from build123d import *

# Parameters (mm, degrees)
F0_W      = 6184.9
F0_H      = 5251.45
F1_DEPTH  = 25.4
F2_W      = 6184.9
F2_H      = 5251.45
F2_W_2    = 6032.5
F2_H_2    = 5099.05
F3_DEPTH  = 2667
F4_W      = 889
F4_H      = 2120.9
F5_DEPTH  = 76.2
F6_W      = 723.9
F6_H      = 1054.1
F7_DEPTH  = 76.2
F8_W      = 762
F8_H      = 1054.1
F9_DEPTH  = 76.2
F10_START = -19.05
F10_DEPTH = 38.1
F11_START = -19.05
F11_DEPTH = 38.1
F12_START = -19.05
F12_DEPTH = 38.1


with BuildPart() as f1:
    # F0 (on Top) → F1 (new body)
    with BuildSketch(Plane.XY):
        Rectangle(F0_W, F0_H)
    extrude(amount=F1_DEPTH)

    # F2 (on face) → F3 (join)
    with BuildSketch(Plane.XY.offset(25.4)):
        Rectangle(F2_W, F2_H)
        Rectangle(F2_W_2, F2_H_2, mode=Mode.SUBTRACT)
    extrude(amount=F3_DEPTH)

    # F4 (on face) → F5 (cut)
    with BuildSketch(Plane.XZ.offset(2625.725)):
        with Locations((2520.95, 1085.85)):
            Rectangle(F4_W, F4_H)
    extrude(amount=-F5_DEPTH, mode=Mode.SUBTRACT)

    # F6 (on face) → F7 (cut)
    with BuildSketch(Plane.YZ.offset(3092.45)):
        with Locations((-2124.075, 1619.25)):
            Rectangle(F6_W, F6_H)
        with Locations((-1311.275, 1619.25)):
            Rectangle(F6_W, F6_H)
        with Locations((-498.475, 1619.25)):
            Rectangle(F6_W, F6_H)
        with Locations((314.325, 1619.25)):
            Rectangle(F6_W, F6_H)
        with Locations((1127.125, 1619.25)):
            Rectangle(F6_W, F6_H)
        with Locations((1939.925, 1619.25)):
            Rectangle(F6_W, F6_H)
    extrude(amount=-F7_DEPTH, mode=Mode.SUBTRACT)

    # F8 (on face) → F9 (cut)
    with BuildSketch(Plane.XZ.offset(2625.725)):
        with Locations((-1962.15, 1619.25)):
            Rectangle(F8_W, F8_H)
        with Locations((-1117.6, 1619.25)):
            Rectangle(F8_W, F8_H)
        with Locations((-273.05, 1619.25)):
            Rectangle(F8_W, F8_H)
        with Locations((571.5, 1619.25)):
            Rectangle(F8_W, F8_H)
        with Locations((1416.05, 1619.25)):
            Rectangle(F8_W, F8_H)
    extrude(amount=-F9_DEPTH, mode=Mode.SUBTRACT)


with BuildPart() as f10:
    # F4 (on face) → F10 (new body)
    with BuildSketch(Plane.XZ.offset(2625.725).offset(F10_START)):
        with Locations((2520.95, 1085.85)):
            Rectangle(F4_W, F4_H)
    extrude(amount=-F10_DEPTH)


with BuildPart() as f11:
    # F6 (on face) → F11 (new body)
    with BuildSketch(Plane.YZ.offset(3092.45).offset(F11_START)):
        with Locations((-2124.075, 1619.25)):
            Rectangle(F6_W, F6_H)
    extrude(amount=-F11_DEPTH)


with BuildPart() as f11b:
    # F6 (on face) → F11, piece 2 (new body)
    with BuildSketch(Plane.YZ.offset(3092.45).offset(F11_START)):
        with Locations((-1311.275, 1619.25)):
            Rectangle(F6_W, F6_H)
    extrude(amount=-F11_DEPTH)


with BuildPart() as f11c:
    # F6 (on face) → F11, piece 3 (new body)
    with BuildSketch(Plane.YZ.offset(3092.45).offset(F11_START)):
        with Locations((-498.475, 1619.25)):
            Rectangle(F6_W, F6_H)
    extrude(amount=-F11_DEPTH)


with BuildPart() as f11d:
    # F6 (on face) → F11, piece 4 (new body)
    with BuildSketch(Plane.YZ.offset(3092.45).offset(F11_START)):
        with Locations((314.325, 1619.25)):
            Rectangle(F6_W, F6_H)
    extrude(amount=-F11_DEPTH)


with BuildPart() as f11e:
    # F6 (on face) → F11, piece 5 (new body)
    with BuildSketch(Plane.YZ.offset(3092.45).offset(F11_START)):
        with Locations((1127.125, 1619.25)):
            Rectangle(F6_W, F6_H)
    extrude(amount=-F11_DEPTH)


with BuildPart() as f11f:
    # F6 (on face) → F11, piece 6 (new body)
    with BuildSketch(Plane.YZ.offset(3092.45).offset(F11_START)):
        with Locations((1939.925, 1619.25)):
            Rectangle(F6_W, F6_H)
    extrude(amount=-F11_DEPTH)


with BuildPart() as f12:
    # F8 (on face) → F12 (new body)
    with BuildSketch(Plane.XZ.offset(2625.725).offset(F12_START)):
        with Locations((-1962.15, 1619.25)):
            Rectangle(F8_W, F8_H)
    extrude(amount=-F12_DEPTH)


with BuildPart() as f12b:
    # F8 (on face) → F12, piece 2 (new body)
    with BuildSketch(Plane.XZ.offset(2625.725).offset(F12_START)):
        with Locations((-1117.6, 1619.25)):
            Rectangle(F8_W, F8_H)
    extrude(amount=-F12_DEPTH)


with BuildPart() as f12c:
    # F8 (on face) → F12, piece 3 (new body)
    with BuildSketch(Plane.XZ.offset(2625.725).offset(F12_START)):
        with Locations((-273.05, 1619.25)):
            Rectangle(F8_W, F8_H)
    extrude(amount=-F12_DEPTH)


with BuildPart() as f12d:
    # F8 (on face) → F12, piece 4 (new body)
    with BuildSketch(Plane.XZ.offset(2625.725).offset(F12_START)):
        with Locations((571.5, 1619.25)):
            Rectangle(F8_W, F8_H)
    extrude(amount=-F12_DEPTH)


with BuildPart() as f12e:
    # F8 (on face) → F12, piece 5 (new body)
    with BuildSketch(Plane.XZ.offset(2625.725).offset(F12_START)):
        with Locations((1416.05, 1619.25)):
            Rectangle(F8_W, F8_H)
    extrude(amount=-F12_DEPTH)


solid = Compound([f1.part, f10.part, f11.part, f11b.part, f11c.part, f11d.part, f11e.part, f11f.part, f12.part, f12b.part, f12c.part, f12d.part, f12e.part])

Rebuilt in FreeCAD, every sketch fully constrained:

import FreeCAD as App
import Part
import Sketcher
from FreeCAD import Vector
Q = App.Units.Quantity


def add_polygon(sketch, points):
    """Adds a closed chain of lines whose ends are joined by coincident constraints."""
    first, n = sketch.GeometryCount, len(points)
    for a, b in zip(points, points[1:] + points[:1]):
        sketch.addGeometry(Part.LineSegment(App.Vector(*a, 0), App.Vector(*b, 0)), False)
    for i in range(n):
        sketch.addConstraint(Sketcher.Constraint("Coincident", first + i, 2, first + (i + 1) % n, 1))

doc = App.newDocument("Part")
body = doc.addObject("PartDesign::Body", "Body")

# Sketch on XY plane
sketch1 = body.newObject("Sketcher::SketchObject", "Sketch")
sketch1.AttachmentSupport = (doc.getObject("XY_Plane"), [""])
sketch1.MapMode = "FlatFace"
add_polygon(sketch1, [(-3092, 2626), (-3092, -2626), (3092, -2626), (3092, 2626)])  # lines 0-3
sketch1.addConstraint([
    Sketcher.Constraint("Vertical", 0),
    Sketcher.Constraint("Horizontal", 1),
    Sketcher.Constraint("Vertical", 2),
    Sketcher.Constraint("Horizontal", 3),
    Sketcher.Constraint("Symmetric", 0, 2, 2, 2, -1, 1),
    Sketcher.Constraint("DistanceX", 1, 1, 1, 2, Q("243.5 in")),
    Sketcher.Constraint("DistanceY", 0, 2, 0, 1, Q("206.75 in")),
])
pad1 = body.newObject("PartDesign::Pad", "Pad")
pad1.Profile = sketch1
pad1.Length = Q("1 in")

# Sketch on XY plane
sketch2 = body.newObject("Sketcher::SketchObject", "Sketch001")
sketch2.AttachmentSupport = (doc.getObject("XY_Plane"), [""])
sketch2.MapMode = "FlatFace"
sketch2.AttachmentOffset = App.Placement(Vector(0, 0, 1 * 25.4), App.Rotation())
add_polygon(sketch2, [(-3092, 2626), (-3092, -2626), (3092, -2626), (3092, 2626)])  # lines 0-3
add_polygon(sketch2, [(3016, -2550), (-3016, -2550), (-3016, 2550), (3016, 2550)])  # lines 4-7
sketch2.addConstraint([
    Sketcher.Constraint("Vertical", 0),
    Sketcher.Constraint("Horizontal", 1),
    Sketcher.Constraint("Vertical", 2),
    Sketcher.Constraint("Horizontal", 3),
    Sketcher.Constraint("Horizontal", 4),
    Sketcher.Constraint("Vertical", 5),
    Sketcher.Constraint("Horizontal", 6),
    Sketcher.Constraint("Vertical", 7),
    Sketcher.Constraint("Symmetric", 0, 2, 2, 2, -1, 1),
    Sketcher.Constraint("Symmetric", 4, 2, 6, 2, -1, 1),
    Sketcher.Constraint("DistanceX", 1, 1, 1, 2, Q("243.5 in")),
    Sketcher.Constraint("DistanceX", 4, 2, 4, 1, Q("237.5 in")),
    Sketcher.Constraint("DistanceY", 0, 2, 4, 2, Q("3 in")),
    Sketcher.Constraint("DistanceY", 0, 2, 0, 1, Q("206.75 in")),
])
pad2 = body.newObject("PartDesign::Pad", "Pad001")
pad2.Profile = sketch2
pad2.Length = Q("105 in")

# Sketch on XZ plane
sketch3 = body.newObject("Sketcher::SketchObject", "Sketch002")
sketch3.AttachmentSupport = (doc.getObject("XZ_Plane"), [""])
sketch3.MapMode = "FlatFace"
sketch3.AttachmentOffset = App.Placement(Vector(0, 0, 103.375 * 25.4), App.Rotation())
add_polygon(sketch3, [(2076, 2146), (2076, 25), (2965, 25), (2965, 2146)])  # lines 0-3
sketch3.addConstraint([
    Sketcher.Constraint("Vertical", 0),
    Sketcher.Constraint("Horizontal", 1),
    Sketcher.Constraint("Vertical", 2),
    Sketcher.Constraint("Horizontal", 3),
    Sketcher.Constraint("DistanceX", 1, 1, 1, 2, Q("35 in")),
    Sketcher.Constraint("DistanceY", 0, 2, 0, 1, Q("83.5 in")),
    Sketcher.Constraint("DistanceY", -1, 1, 0, 2, Q("1 in")),
    Sketcher.Constraint("DistanceX", -1, 1, 0, 2, Q("81.75 in")),
])
pocket1 = body.newObject("PartDesign::Pocket", "Pocket")
pocket1.Profile = sketch3
pocket1.Length = Q("3 in")

# Sketch on YZ plane
sketch4 = body.newObject("Sketcher::SketchObject", "Sketch003")
sketch4.AttachmentSupport = (doc.getObject("YZ_Plane"), [""])
sketch4.MapMode = "FlatFace"
sketch4.AttachmentOffset = App.Placement(Vector(0, 0, 121.75 * 25.4), App.Rotation())
add_polygon(sketch4, [(-2486, 2146), (-2486, 1092), (-1762, 1092), (-1762, 2146)])  # lines 0-3
add_polygon(sketch4, [(-1673, 2146), (-1673, 1092), (-949, 1092), (-949, 2146)])  # lines 4-7
add_polygon(sketch4, [(-860, 2146), (-860, 1092), (-137, 1092), (-137, 2146)])  # lines 8-11
add_polygon(sketch4, [(-48, 2146), (-48, 1092), (676, 1092), (676, 2146)])  # lines 12-15
add_polygon(sketch4, [(765, 2146), (765, 1092), (1489, 1092), (1489, 2146)])  # lines 16-19
add_polygon(sketch4, [(1578, 2146), (1578, 1092), (2302, 1092), (2302, 2146)])  # lines 20-23
sketch4.addConstraint([
    Sketcher.Constraint("Vertical", 0),
    Sketcher.Constraint("Horizontal", 1),
    Sketcher.Constraint("Vertical", 2),
    Sketcher.Constraint("Horizontal", 3),
    Sketcher.Constraint("Vertical", 4),
    Sketcher.Constraint("Horizontal", 5),
    Sketcher.Constraint("Vertical", 6),
    Sketcher.Constraint("Horizontal", 7),
    Sketcher.Constraint("Vertical", 8),
    Sketcher.Constraint("Horizontal", 9),
    Sketcher.Constraint("Vertical", 10),
    Sketcher.Constraint("Horizontal", 11),
    Sketcher.Constraint("Vertical", 12),
    Sketcher.Constraint("Horizontal", 13),
    Sketcher.Constraint("Vertical", 14),
    Sketcher.Constraint("Horizontal", 15),
    Sketcher.Constraint("Vertical", 16),
    Sketcher.Constraint("Horizontal", 17),
    Sketcher.Constraint("Vertical", 18),
    Sketcher.Constraint("Horizontal", 19),
    Sketcher.Constraint("Vertical", 20),
    Sketcher.Constraint("Horizontal", 21),
    Sketcher.Constraint("Vertical", 22),
    Sketcher.Constraint("Horizontal", 23),
    Sketcher.Constraint("Horizontal", 1, 2, 4, 2),
    Sketcher.Constraint("Horizontal", 3, 2, 6, 2),
    Sketcher.Constraint("Horizontal", 5, 2, 8, 2),
    Sketcher.Constraint("Horizontal", 7, 2, 10, 2),
    Sketcher.Constraint("Horizontal", 9, 2, 12, 2),
    Sketcher.Constraint("Horizontal", 11, 2, 14, 2),
    Sketcher.Constraint("Horizontal", 13, 2, 16, 2),
    Sketcher.Constraint("Horizontal", 15, 2, 18, 2),
    Sketcher.Constraint("Horizontal", 17, 2, 20, 2),
    Sketcher.Constraint("Horizontal", 19, 2, 22, 2),
    Sketcher.Constraint("Equal", 3, 5),
    Sketcher.Constraint("Equal", 7, 9),
    Sketcher.Constraint("Equal", 11, 13),
    Sketcher.Constraint("Equal", 15, 17),
    Sketcher.Constraint("Equal", 19, 21),
    Sketcher.Constraint("DistanceX", 1, 1, 1, 2, Q("28.5 in")),
    Sketcher.Constraint("DistanceY", 0, 2, 0, 1, Q("41.5 in")),
    Sketcher.Constraint("DistanceY", -1, 1, 0, 2, Q("43 in")),
    Sketcher.Constraint("DistanceX", 0, 2, 4, 2, Q("32 in")),
    Sketcher.Constraint("DistanceX", 4, 2, 8, 2, Q("32 in")),
    Sketcher.Constraint("DistanceX", 8, 2, 12, 2, Q("32 in")),
    Sketcher.Constraint("DistanceX", 12, 2, 16, 2, Q("32 in")),
    Sketcher.Constraint("DistanceX", 16, 2, 20, 2, Q("32 in")),
    Sketcher.Constraint("DistanceX", 0, 2, -1, 1, Q("97.875 in")),
])
pocket2 = body.newObject("PartDesign::Pocket", "Pocket001")
pocket2.Profile = sketch4
pocket2.Length = Q("3 in")

# Sketch on XZ plane
sketch5 = body.newObject("Sketcher::SketchObject", "Sketch004")
sketch5.AttachmentSupport = (doc.getObject("XZ_Plane"), [""])
sketch5.MapMode = "FlatFace"
sketch5.AttachmentOffset = App.Placement(Vector(0, 0, 103.375 * 25.4), App.Rotation())
add_polygon(sketch5, [(-2343, 2146), (-2343, 1092), (-1581, 1092), (-1581, 2146)])  # lines 0-3
add_polygon(sketch5, [(-1499, 2146), (-1499, 1092), (-737, 1092), (-737, 2146)])  # lines 4-7
add_polygon(sketch5, [(-654, 2146), (-654, 1092), (108, 1092), (108, 2146)])  # lines 8-11
add_polygon(sketch5, [(190, 2146), (190, 1092), (952, 1092), (952, 2146)])  # lines 12-15
add_polygon(sketch5, [(1035, 2146), (1035, 1092), (1797, 1092), (1797, 2146)])  # lines 16-19
sketch5.addConstraint([
    Sketcher.Constraint("Vertical", 0),
    Sketcher.Constraint("Horizontal", 1),
    Sketcher.Constraint("Vertical", 2),
    Sketcher.Constraint("Horizontal", 3),
    Sketcher.Constraint("Vertical", 4),
    Sketcher.Constraint("Horizontal", 5),
    Sketcher.Constraint("Vertical", 6),
    Sketcher.Constraint("Horizontal", 7),
    Sketcher.Constraint("Vertical", 8),
    Sketcher.Constraint("Horizontal", 9),
    Sketcher.Constraint("Vertical", 10),
    Sketcher.Constraint("Horizontal", 11),
    Sketcher.Constraint("Vertical", 12),
    Sketcher.Constraint("Horizontal", 13),
    Sketcher.Constraint("Vertical", 14),
    Sketcher.Constraint("Horizontal", 15),
    Sketcher.Constraint("Vertical", 16),
    Sketcher.Constraint("Horizontal", 17),
    Sketcher.Constraint("Vertical", 18),
    Sketcher.Constraint("Horizontal", 19),
    Sketcher.Constraint("Horizontal", 1, 2, 4, 2),
    Sketcher.Constraint("Horizontal", 3, 2, 6, 2),
    Sketcher.Constraint("Horizontal", 5, 2, 8, 2),
    Sketcher.Constraint("Horizontal", 7, 2, 10, 2),
    Sketcher.Constraint("Horizontal", 9, 2, 12, 2),
    Sketcher.Constraint("Horizontal", 11, 2, 14, 2),
    Sketcher.Constraint("Horizontal", 13, 2, 16, 2),
    Sketcher.Constraint("Horizontal", 15, 2, 18, 2),
    Sketcher.Constraint("Equal", 3, 5),
    Sketcher.Constraint("Equal", 7, 9),
    Sketcher.Constraint("Equal", 11, 13),
    Sketcher.Constraint("Equal", 15, 17),
    Sketcher.Constraint("DistanceX", 1, 1, 1, 2, Q("30 in")),
    Sketcher.Constraint("DistanceY", 0, 2, 0, 1, Q("41.5 in")),
    Sketcher.Constraint("DistanceY", -1, 1, 0, 2, Q("43 in")),
    Sketcher.Constraint("DistanceX", 4, 2, -1, 1, Q("59 in")),
    Sketcher.Constraint("DistanceX", -1, 1, 12, 2, Q("7.5 in")),
    Sketcher.Constraint("DistanceX", 1, 2, 8, 2, Q("36.5 in")),
    Sketcher.Constraint("DistanceX", 9, 2, 16, 2, Q("36.5 in")),
    Sketcher.Constraint("DistanceX", 0, 2, -1, 1, Q("92.25 in")),
])
pocket3 = body.newObject("PartDesign::Pocket", "Pocket002")
pocket3.Profile = sketch5
pocket3.Length = Q("3 in")
body2 = doc.addObject("PartDesign::Body", "Body001")

# Sketch on XZ plane
sketch6 = body2.newObject("Sketcher::SketchObject", "Sketch005")
sketch6.AttachmentSupport = (doc.getObject("XZ_Plane001"), [""])
sketch6.MapMode = "FlatFace"
sketch6.AttachmentOffset = App.Placement(Vector(0, 0, 102.625 * 25.4), App.Rotation())
add_polygon(sketch6, [(2076, 2146), (2076, 25), (2965, 25), (2965, 2146)])  # lines 0-3
sketch6.addConstraint([
    Sketcher.Constraint("Vertical", 0),
    Sketcher.Constraint("Horizontal", 1),
    Sketcher.Constraint("Vertical", 2),
    Sketcher.Constraint("Horizontal", 3),
    Sketcher.Constraint("DistanceX", 1, 1, 1, 2, Q("35 in")),
    Sketcher.Constraint("DistanceY", 0, 2, 0, 1, Q("83.5 in")),
    Sketcher.Constraint("DistanceY", -1, 1, 0, 2, Q("1 in")),
    Sketcher.Constraint("DistanceX", -1, 1, 0, 2, Q("81.75 in")),
])
pad3 = body2.newObject("PartDesign::Pad", "Pad002")
pad3.Profile = sketch6
pad3.Length = Q("1.5 in")
pad3.Reversed = True
body3 = doc.addObject("PartDesign::Body", "Body002")

# Sketch on YZ plane
sketch7 = body3.newObject("Sketcher::SketchObject", "Sketch006")
sketch7.AttachmentSupport = (doc.getObject("YZ_Plane002"), [""])
sketch7.MapMode = "FlatFace"
sketch7.AttachmentOffset = App.Placement(Vector(0, 0, 121 * 25.4), App.Rotation())
add_polygon(sketch7, [(-2486, 2146), (-2486, 1092), (-1762, 1092), (-1762, 2146)])  # lines 0-3
sketch7.addConstraint([
    Sketcher.Constraint("Vertical", 0),
    Sketcher.Constraint("Horizontal", 1),
    Sketcher.Constraint("Vertical", 2),
    Sketcher.Constraint("Horizontal", 3),
    Sketcher.Constraint("DistanceX", 1, 1, 1, 2, Q("28.5 in")),
    Sketcher.Constraint("DistanceY", 0, 2, 0, 1, Q("41.5 in")),
    Sketcher.Constraint("DistanceY", -1, 1, 0, 2, Q("43 in")),
    Sketcher.Constraint("DistanceX", 0, 2, -1, 1, Q("97.875 in")),
])
pad4 = body3.newObject("PartDesign::Pad", "Pad003")
pad4.Profile = sketch7
pad4.Length = Q("1.5 in")
pad4.Reversed = True
body4 = doc.addObject("PartDesign::Body", "Body003")

# Sketch on YZ plane
sketch8 = body4.newObject("Sketcher::SketchObject", "Sketch007")
sketch8.AttachmentSupport = (doc.getObject("YZ_Plane003"), [""])
sketch8.MapMode = "FlatFace"
sketch8.AttachmentOffset = App.Placement(Vector(0, 0, 121 * 25.4), App.Rotation())
add_polygon(sketch8, [(-1673, 2146), (-1673, 1092), (-949, 1092), (-949, 2146)])  # lines 0-3
sketch8.addConstraint([
    Sketcher.Constraint("Vertical", 0),
    Sketcher.Constraint("Horizontal", 1),
    Sketcher.Constraint("Vertical", 2),
    Sketcher.Constraint("Horizontal", 3),
    Sketcher.Constraint("DistanceX", 1, 1, 1, 2, Q("28.5 in")),
    Sketcher.Constraint("DistanceY", 0, 2, 0, 1, Q("41.5 in")),
    Sketcher.Constraint("DistanceY", -1, 1, 0, 2, Q("43 in")),
    Sketcher.Constraint("DistanceX", 0, 2, -1, 1, Q("65.875 in")),
])
pad5 = body4.newObject("PartDesign::Pad", "Pad004")
pad5.Profile = sketch8
pad5.Length = Q("1.5 in")
pad5.Reversed = True
body5 = doc.addObject("PartDesign::Body", "Body004")

# Sketch on YZ plane
sketch9 = body5.newObject("Sketcher::SketchObject", "Sketch008")
sketch9.AttachmentSupport = (doc.getObject("YZ_Plane004"), [""])
sketch9.MapMode = "FlatFace"
sketch9.AttachmentOffset = App.Placement(Vector(0, 0, 121 * 25.4), App.Rotation())
add_polygon(sketch9, [(-860, 2146), (-860, 1092), (-137, 1092), (-137, 2146)])  # lines 0-3
sketch9.addConstraint([
    Sketcher.Constraint("Vertical", 0),
    Sketcher.Constraint("Horizontal", 1),
    Sketcher.Constraint("Vertical", 2),
    Sketcher.Constraint("Horizontal", 3),
    Sketcher.Constraint("DistanceX", 1, 1, 1, 2, Q("28.5 in")),
    Sketcher.Constraint("DistanceY", 0, 2, 0, 1, Q("41.5 in")),
    Sketcher.Constraint("DistanceY", -1, 1, 0, 2, Q("43 in")),
    Sketcher.Constraint("DistanceX", 0, 2, -1, 1, Q("33.875 in")),
])
pad6 = body5.newObject("PartDesign::Pad", "Pad005")
pad6.Profile = sketch9
pad6.Length = Q("1.5 in")
pad6.Reversed = True
body6 = doc.addObject("PartDesign::Body", "Body005")

# Sketch on YZ plane
sketch10 = body6.newObject("Sketcher::SketchObject", "Sketch009")
sketch10.AttachmentSupport = (doc.getObject("YZ_Plane005"), [""])
sketch10.MapMode = "FlatFace"
sketch10.AttachmentOffset = App.Placement(Vector(0, 0, 121 * 25.4), App.Rotation())
add_polygon(sketch10, [(-48, 2146), (-48, 1092), (676, 1092), (676, 2146)])  # lines 0-3
sketch10.addConstraint([
    Sketcher.Constraint("Vertical", 0),
    Sketcher.Constraint("Horizontal", 1),
    Sketcher.Constraint("Vertical", 2),
    Sketcher.Constraint("Horizontal", 3),
    Sketcher.Constraint("DistanceX", 1, 1, 1, 2, Q("28.5 in")),
    Sketcher.Constraint("DistanceY", 0, 2, 0, 1, Q("41.5 in")),
    Sketcher.Constraint("DistanceY", -1, 1, 0, 2, Q("43 in")),
    Sketcher.Constraint("DistanceX", 0, 2, -1, 1, Q("1.875 in")),
])
pad7 = body6.newObject("PartDesign::Pad", "Pad006")
pad7.Profile = sketch10
pad7.Length = Q("1.5 in")
pad7.Reversed = True
body7 = doc.addObject("PartDesign::Body", "Body006")

# Sketch on YZ plane
sketch11 = body7.newObject("Sketcher::SketchObject", "Sketch010")
sketch11.AttachmentSupport = (doc.getObject("YZ_Plane006"), [""])
sketch11.MapMode = "FlatFace"
sketch11.AttachmentOffset = App.Placement(Vector(0, 0, 121 * 25.4), App.Rotation())
add_polygon(sketch11, [(765, 2146), (765, 1092), (1489, 1092), (1489, 2146)])  # lines 0-3
sketch11.addConstraint([
    Sketcher.Constraint("Vertical", 0),
    Sketcher.Constraint("Horizontal", 1),
    Sketcher.Constraint("Vertical", 2),
    Sketcher.Constraint("Horizontal", 3),
    Sketcher.Constraint("DistanceX", 1, 1, 1, 2, Q("28.5 in")),
    Sketcher.Constraint("DistanceY", 0, 2, 0, 1, Q("41.5 in")),
    Sketcher.Constraint("DistanceY", -1, 1, 0, 2, Q("43 in")),
    Sketcher.Constraint("DistanceX", -1, 1, 0, 2, Q("30.125 in")),
])
pad8 = body7.newObject("PartDesign::Pad", "Pad007")
pad8.Profile = sketch11
pad8.Length = Q("1.5 in")
pad8.Reversed = True
body8 = doc.addObject("PartDesign::Body", "Body007")

# Sketch on YZ plane
sketch12 = body8.newObject("Sketcher::SketchObject", "Sketch011")
sketch12.AttachmentSupport = (doc.getObject("YZ_Plane007"), [""])
sketch12.MapMode = "FlatFace"
sketch12.AttachmentOffset = App.Placement(Vector(0, 0, 121 * 25.4), App.Rotation())
add_polygon(sketch12, [(1578, 2146), (1578, 1092), (2302, 1092), (2302, 2146)])  # lines 0-3
sketch12.addConstraint([
    Sketcher.Constraint("Vertical", 0),
    Sketcher.Constraint("Horizontal", 1),
    Sketcher.Constraint("Vertical", 2),
    Sketcher.Constraint("Horizontal", 3),
    Sketcher.Constraint("DistanceX", 1, 1, 1, 2, Q("28.5 in")),
    Sketcher.Constraint("DistanceY", 0, 2, 0, 1, Q("41.5 in")),
    Sketcher.Constraint("DistanceY", -1, 1, 0, 2, Q("43 in")),
    Sketcher.Constraint("DistanceX", -1, 1, 0, 2, Q("62.125 in")),
])
pad9 = body8.newObject("PartDesign::Pad", "Pad008")
pad9.Profile = sketch12
pad9.Length = Q("1.5 in")
pad9.Reversed = True
body9 = doc.addObject("PartDesign::Body", "Body008")

# Sketch on XZ plane
sketch13 = body9.newObject("Sketcher::SketchObject", "Sketch012")
sketch13.AttachmentSupport = (doc.getObject("XZ_Plane008"), [""])
sketch13.MapMode = "FlatFace"
sketch13.AttachmentOffset = App.Placement(Vector(0, 0, 102.625 * 25.4), App.Rotation())
add_polygon(sketch13, [(-2343, 2146), (-2343, 1092), (-1581, 1092), (-1581, 2146)])  # lines 0-3
sketch13.addConstraint([
    Sketcher.Constraint("Vertical", 0),
    Sketcher.Constraint("Horizontal", 1),
    Sketcher.Constraint("Vertical", 2),
    Sketcher.Constraint("Horizontal", 3),
    Sketcher.Constraint("DistanceX", 1, 1, 1, 2, Q("30 in")),
    Sketcher.Constraint("DistanceY", 0, 2, 0, 1, Q("41.5 in")),
    Sketcher.Constraint("DistanceY", -1, 1, 0, 2, Q("43 in")),
    Sketcher.Constraint("DistanceX", 0, 2, -1, 1, Q("92.25 in")),
])
pad10 = body9.newObject("PartDesign::Pad", "Pad009")
pad10.Profile = sketch13
pad10.Length = Q("1.5 in")
pad10.Reversed = True
body10 = doc.addObject("PartDesign::Body", "Body009")

# Sketch on XZ plane
sketch14 = body10.newObject("Sketcher::SketchObject", "Sketch013")
sketch14.AttachmentSupport = (doc.getObject("XZ_Plane009"), [""])
sketch14.MapMode = "FlatFace"
sketch14.AttachmentOffset = App.Placement(Vector(0, 0, 102.625 * 25.4), App.Rotation())
add_polygon(sketch14, [(-1499, 2146), (-1499, 1092), (-737, 1092), (-737, 2146)])  # lines 0-3
sketch14.addConstraint([
    Sketcher.Constraint("Vertical", 0),
    Sketcher.Constraint("Horizontal", 1),
    Sketcher.Constraint("Vertical", 2),
    Sketcher.Constraint("Horizontal", 3),
    Sketcher.Constraint("DistanceX", 1, 1, 1, 2, Q("30 in")),
    Sketcher.Constraint("DistanceY", 0, 2, 0, 1, Q("41.5 in")),
    Sketcher.Constraint("DistanceX", 0, 2, -1, 1, Q("59 in")),
    Sketcher.Constraint("DistanceY", -1, 1, 0, 2, Q("43 in")),
])
pad11 = body10.newObject("PartDesign::Pad", "Pad010")
pad11.Profile = sketch14
pad11.Length = Q("1.5 in")
pad11.Reversed = True
body11 = doc.addObject("PartDesign::Body", "Body010")

# Sketch on XZ plane
sketch15 = body11.newObject("Sketcher::SketchObject", "Sketch014")
sketch15.AttachmentSupport = (doc.getObject("XZ_Plane010"), [""])
sketch15.MapMode = "FlatFace"
sketch15.AttachmentOffset = App.Placement(Vector(0, 0, 102.625 * 25.4), App.Rotation())
add_polygon(sketch15, [(-654, 2146), (-654, 1092), (108, 1092), (108, 2146)])  # lines 0-3
sketch15.addConstraint([
    Sketcher.Constraint("Vertical", 0),
    Sketcher.Constraint("Horizontal", 1),
    Sketcher.Constraint("Vertical", 2),
    Sketcher.Constraint("Horizontal", 3),
    Sketcher.Constraint("DistanceX", 1, 1, 1, 2, Q("30 in")),
    Sketcher.Constraint("DistanceY", 0, 2, 0, 1, Q("41.5 in")),
    Sketcher.Constraint("DistanceY", -1, 1, 0, 2, Q("43 in")),
    Sketcher.Constraint("DistanceX", 0, 2, -1, 1, Q("25.75 in")),
])
pad12 = body11.newObject("PartDesign::Pad", "Pad011")
pad12.Profile = sketch15
pad12.Length = Q("1.5 in")
pad12.Reversed = True
body12 = doc.addObject("PartDesign::Body", "Body011")

# Sketch on XZ plane
sketch16 = body12.newObject("Sketcher::SketchObject", "Sketch015")
sketch16.AttachmentSupport = (doc.getObject("XZ_Plane011"), [""])
sketch16.MapMode = "FlatFace"
sketch16.AttachmentOffset = App.Placement(Vector(0, 0, 102.625 * 25.4), App.Rotation())
add_polygon(sketch16, [(190, 2146), (190, 1092), (952, 1092), (952, 2146)])  # lines 0-3
sketch16.addConstraint([
    Sketcher.Constraint("Vertical", 0),
    Sketcher.Constraint("Horizontal", 1),
    Sketcher.Constraint("Vertical", 2),
    Sketcher.Constraint("Horizontal", 3),
    Sketcher.Constraint("DistanceX", 1, 1, 1, 2, Q("30 in")),
    Sketcher.Constraint("DistanceY", 0, 2, 0, 1, Q("41.5 in")),
    Sketcher.Constraint("DistanceY", -1, 1, 0, 2, Q("43 in")),
    Sketcher.Constraint("DistanceX", -1, 1, 0, 2, Q("7.5 in")),
])
pad13 = body12.newObject("PartDesign::Pad", "Pad012")
pad13.Profile = sketch16
pad13.Length = Q("1.5 in")
pad13.Reversed = True
body13 = doc.addObject("PartDesign::Body", "Body012")

# Sketch on XZ plane
sketch17 = body13.newObject("Sketcher::SketchObject", "Sketch016")
sketch17.AttachmentSupport = (doc.getObject("XZ_Plane012"), [""])
sketch17.MapMode = "FlatFace"
sketch17.AttachmentOffset = App.Placement(Vector(0, 0, 102.625 * 25.4), App.Rotation())
add_polygon(sketch17, [(1035, 2146), (1035, 1092), (1797, 1092), (1797, 2146)])  # lines 0-3
sketch17.addConstraint([
    Sketcher.Constraint("Vertical", 0),
    Sketcher.Constraint("Horizontal", 1),
    Sketcher.Constraint("Vertical", 2),
    Sketcher.Constraint("Horizontal", 3),
    Sketcher.Constraint("DistanceX", 1, 1, 1, 2, Q("30 in")),
    Sketcher.Constraint("DistanceY", 0, 2, 0, 1, Q("41.5 in")),
    Sketcher.Constraint("DistanceY", -1, 1, 0, 2, Q("43 in")),
    Sketcher.Constraint("DistanceX", -1, 1, 0, 2, Q("40.75 in")),
])
pad14 = body13.newObject("PartDesign::Pad", "Pad013")
pad14.Profile = sketch17
pad14.Length = Q("1.5 in")
pad14.Reversed = True

doc.recompute()
